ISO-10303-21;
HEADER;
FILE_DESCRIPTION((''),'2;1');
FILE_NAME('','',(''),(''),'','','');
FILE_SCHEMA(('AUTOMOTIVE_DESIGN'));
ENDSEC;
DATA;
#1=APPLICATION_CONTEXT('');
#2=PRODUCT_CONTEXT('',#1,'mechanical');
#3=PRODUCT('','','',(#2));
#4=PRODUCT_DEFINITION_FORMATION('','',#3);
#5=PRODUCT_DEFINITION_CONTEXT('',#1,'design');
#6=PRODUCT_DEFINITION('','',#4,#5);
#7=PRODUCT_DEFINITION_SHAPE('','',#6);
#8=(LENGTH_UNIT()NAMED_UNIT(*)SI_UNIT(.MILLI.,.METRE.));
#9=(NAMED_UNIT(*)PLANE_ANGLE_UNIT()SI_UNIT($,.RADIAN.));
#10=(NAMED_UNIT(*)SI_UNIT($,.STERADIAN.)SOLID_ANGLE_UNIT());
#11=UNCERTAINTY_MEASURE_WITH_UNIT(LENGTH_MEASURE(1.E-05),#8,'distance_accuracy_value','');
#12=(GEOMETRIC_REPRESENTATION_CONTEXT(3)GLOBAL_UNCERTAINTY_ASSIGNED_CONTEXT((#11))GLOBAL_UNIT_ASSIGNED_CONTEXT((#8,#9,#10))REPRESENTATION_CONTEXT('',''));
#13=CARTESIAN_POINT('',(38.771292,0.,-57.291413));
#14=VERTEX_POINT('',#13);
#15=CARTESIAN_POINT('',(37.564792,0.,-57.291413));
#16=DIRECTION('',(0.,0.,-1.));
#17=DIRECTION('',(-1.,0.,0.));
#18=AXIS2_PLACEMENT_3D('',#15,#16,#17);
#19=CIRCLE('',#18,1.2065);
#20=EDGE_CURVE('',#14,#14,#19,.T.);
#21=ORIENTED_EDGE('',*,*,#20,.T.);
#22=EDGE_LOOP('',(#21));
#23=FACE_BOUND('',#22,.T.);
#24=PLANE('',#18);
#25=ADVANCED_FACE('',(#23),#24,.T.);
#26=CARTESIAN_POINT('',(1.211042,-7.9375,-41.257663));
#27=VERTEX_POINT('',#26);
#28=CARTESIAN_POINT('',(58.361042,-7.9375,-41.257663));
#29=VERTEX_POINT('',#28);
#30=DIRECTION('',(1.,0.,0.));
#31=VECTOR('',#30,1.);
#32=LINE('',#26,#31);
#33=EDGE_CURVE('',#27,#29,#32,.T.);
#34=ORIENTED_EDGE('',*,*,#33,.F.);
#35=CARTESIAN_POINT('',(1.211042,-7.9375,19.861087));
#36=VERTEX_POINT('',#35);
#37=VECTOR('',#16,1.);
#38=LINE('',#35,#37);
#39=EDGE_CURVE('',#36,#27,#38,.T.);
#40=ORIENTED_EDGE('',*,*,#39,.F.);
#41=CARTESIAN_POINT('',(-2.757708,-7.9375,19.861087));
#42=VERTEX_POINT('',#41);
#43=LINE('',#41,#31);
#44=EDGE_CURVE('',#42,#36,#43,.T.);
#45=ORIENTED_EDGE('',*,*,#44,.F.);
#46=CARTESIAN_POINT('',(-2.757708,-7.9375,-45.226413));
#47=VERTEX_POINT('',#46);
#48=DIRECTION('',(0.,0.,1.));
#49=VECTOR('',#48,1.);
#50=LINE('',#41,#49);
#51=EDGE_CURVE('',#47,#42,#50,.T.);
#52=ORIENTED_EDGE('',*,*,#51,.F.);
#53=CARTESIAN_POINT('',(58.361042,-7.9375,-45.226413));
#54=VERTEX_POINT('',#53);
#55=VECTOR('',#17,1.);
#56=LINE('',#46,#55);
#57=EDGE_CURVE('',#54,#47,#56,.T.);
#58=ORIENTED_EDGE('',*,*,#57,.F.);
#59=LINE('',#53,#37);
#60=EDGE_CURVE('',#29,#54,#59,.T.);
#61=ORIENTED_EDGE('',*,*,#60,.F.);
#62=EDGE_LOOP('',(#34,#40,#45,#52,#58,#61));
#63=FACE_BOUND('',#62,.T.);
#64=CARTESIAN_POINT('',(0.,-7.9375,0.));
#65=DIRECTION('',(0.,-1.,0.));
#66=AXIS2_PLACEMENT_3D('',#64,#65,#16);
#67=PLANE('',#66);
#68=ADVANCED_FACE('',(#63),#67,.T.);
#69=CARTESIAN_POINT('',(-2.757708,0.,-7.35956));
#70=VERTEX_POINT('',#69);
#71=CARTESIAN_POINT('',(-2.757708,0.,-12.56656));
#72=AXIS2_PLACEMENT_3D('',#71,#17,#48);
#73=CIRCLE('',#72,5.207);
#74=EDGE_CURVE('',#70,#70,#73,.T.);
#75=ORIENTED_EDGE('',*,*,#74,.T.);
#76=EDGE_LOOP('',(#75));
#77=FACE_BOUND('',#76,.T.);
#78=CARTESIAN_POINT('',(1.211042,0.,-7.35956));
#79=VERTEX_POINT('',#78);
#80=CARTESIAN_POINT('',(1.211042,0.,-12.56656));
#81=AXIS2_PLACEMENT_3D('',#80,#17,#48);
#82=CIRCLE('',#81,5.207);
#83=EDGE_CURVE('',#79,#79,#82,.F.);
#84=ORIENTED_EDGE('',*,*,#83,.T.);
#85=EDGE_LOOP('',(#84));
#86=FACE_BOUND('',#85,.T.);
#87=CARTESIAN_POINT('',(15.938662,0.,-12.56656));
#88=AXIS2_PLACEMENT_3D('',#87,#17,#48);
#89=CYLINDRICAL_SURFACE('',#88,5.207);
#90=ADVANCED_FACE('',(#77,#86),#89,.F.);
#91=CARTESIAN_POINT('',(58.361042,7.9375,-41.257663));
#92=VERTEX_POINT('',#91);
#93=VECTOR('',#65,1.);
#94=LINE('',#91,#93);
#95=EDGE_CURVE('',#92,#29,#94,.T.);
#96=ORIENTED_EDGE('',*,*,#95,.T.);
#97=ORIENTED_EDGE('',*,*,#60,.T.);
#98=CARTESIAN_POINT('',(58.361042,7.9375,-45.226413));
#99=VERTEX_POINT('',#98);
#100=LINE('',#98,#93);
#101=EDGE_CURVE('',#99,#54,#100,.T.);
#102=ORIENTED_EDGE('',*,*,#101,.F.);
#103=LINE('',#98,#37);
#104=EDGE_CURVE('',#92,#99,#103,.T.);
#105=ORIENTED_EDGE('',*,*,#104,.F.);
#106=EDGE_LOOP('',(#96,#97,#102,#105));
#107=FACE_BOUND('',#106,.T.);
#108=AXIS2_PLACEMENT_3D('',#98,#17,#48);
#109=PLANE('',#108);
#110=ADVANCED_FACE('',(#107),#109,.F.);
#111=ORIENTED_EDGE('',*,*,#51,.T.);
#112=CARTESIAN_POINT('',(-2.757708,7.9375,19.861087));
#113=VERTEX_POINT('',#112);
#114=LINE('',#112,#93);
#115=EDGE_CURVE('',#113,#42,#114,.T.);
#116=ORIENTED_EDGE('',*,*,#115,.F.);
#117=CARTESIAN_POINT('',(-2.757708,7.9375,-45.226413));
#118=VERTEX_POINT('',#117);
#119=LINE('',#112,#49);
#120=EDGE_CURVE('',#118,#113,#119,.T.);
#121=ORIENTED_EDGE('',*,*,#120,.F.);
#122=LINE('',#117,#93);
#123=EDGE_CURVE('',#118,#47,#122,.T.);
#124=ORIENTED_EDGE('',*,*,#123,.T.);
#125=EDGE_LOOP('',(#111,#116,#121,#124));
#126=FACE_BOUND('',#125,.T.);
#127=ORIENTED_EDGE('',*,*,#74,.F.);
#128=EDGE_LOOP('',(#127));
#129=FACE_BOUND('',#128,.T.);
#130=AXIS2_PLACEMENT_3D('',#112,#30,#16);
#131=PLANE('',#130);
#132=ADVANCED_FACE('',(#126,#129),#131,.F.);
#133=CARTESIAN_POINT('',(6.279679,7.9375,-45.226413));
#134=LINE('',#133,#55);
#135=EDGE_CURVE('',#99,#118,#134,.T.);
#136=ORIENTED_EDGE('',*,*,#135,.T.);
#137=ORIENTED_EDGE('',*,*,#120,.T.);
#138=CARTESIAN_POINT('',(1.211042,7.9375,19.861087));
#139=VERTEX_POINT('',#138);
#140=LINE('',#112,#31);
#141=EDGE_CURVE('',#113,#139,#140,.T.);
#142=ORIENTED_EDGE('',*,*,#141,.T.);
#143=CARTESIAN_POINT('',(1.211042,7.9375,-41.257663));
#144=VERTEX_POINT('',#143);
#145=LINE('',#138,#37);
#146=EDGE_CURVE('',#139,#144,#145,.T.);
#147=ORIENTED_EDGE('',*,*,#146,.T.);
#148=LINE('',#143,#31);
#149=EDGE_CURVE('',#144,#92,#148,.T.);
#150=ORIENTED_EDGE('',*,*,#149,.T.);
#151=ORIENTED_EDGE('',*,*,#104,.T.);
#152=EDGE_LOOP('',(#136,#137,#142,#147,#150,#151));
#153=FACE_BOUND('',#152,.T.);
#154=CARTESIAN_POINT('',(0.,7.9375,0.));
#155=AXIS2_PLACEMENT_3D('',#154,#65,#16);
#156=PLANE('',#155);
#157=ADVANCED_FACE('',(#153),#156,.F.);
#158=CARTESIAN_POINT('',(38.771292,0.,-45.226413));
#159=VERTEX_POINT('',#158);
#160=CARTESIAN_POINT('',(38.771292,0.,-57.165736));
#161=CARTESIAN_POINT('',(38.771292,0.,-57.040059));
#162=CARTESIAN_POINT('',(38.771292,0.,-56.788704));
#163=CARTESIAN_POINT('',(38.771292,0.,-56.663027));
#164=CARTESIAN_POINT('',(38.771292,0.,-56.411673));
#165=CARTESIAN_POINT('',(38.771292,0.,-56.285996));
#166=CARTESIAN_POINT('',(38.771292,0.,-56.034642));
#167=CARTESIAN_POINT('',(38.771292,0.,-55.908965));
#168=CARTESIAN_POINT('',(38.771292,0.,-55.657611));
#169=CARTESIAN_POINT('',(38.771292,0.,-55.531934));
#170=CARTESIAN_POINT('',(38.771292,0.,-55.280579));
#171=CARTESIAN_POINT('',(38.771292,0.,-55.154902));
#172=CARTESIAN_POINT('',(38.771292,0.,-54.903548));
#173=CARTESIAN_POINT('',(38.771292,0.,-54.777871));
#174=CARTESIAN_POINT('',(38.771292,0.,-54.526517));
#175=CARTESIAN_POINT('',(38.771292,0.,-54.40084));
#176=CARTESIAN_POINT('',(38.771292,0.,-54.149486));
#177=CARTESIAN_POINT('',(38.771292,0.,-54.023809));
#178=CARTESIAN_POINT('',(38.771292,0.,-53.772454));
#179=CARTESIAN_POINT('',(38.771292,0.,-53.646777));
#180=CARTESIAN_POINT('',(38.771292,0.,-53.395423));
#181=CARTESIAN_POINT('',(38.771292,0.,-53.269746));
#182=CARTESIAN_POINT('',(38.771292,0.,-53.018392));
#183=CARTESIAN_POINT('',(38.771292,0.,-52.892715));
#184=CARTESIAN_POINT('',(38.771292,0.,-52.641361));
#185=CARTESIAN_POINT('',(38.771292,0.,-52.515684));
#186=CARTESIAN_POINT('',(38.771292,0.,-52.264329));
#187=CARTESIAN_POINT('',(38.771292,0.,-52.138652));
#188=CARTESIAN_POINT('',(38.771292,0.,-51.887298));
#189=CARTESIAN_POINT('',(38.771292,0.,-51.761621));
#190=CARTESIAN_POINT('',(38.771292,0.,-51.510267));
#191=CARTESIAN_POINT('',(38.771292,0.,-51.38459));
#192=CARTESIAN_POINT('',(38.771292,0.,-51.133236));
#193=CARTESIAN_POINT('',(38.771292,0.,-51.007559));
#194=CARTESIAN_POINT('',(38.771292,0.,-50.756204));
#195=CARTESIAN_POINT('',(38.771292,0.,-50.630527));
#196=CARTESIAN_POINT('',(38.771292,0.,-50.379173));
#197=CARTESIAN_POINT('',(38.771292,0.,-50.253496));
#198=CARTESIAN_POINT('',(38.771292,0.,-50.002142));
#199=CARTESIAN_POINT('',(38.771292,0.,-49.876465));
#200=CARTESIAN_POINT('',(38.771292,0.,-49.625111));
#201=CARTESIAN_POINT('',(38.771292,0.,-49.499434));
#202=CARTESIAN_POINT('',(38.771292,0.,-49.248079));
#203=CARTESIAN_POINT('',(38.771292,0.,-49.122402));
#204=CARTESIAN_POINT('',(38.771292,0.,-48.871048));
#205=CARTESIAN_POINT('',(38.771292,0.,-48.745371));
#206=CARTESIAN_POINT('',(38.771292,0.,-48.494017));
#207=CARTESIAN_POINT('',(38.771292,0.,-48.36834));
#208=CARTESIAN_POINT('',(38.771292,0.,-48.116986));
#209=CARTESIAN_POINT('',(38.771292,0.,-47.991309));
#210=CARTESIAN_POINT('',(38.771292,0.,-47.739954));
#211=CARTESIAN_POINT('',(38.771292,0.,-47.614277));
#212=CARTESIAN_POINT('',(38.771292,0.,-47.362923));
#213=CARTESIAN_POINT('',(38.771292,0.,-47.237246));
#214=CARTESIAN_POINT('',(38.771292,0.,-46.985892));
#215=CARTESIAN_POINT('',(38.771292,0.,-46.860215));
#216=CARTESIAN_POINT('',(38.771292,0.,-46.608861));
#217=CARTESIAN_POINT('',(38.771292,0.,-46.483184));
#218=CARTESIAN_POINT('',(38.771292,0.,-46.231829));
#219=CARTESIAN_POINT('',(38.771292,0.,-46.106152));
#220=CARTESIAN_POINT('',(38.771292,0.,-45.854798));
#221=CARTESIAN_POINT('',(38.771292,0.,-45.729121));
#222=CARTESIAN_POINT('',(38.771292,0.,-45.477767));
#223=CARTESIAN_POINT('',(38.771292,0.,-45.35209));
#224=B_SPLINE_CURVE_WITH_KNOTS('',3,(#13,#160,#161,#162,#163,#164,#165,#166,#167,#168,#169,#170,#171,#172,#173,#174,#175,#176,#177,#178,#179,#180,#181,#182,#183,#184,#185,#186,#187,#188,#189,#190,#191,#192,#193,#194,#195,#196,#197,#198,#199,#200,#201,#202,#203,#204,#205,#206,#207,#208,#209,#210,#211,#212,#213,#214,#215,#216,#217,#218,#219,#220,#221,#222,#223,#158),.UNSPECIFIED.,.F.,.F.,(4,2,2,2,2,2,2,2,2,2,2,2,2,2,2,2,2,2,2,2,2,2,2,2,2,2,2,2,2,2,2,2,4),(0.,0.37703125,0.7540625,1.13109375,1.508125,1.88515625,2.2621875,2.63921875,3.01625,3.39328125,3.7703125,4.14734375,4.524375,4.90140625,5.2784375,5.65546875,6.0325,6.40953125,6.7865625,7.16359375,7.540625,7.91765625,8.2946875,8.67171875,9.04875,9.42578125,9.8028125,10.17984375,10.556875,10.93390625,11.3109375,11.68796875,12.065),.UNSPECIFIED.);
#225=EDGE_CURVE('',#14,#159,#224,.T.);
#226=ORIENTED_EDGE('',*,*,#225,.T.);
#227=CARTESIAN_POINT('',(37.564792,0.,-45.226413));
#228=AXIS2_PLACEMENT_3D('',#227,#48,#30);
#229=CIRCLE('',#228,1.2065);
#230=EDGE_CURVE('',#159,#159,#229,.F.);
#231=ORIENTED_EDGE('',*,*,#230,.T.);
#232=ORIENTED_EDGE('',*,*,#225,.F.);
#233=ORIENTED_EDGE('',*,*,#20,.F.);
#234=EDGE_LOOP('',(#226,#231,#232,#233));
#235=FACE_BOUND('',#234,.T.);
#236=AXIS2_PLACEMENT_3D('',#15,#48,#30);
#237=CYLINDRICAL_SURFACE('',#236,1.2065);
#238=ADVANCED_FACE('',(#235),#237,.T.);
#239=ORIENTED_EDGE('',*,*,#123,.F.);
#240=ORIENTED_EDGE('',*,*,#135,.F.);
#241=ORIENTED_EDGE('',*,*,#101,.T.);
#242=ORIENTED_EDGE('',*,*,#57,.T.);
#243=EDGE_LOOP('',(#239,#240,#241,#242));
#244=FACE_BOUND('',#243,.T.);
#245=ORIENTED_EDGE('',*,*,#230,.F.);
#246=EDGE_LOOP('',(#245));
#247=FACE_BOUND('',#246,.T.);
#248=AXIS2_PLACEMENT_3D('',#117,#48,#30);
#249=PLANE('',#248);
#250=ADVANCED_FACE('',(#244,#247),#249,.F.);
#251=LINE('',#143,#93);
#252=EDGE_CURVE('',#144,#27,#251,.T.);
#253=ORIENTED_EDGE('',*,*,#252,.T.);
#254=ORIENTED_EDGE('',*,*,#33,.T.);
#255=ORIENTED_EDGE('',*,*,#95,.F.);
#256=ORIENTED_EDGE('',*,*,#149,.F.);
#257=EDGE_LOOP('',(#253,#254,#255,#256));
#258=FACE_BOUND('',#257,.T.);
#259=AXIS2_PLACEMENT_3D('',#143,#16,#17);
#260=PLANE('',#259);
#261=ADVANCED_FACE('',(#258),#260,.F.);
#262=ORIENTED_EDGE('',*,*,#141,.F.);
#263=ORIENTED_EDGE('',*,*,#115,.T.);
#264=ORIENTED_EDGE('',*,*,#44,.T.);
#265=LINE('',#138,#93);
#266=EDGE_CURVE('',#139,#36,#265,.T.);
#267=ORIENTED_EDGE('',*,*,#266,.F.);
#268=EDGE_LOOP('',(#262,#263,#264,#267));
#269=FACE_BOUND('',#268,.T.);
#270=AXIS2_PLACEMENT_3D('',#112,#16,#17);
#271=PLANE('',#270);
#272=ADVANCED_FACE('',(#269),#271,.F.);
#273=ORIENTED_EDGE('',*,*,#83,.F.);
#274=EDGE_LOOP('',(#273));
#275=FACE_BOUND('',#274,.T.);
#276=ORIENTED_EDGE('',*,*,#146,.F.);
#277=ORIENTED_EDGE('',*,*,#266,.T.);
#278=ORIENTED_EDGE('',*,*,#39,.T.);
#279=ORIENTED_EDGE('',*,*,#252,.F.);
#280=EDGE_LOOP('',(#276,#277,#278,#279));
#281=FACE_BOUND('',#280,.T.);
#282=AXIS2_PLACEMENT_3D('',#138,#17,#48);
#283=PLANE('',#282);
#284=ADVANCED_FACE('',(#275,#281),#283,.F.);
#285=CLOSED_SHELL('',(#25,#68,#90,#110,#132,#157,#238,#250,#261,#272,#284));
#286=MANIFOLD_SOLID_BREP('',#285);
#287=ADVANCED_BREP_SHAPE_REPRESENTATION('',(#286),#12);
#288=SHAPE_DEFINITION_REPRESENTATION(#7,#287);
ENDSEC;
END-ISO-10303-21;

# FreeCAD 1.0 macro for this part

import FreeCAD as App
import Part
import Sketcher

V = App.Vector
Q = App.Units.Quantity

doc = App.newDocument("Part")
params = doc.addObject("Spreadsheet::Sheet", "Params")
for row, (alias, value) in enumerate([
    ("sketch1_width", "2.25 in"),
    ("sketch1_width2", "0.15625 in"),
    ("pad1_length", "0.625 in"),
    ("sketch2_diameter", "0.41 in"),
    ("pocket1_length", "0.15625 in"),
    ("sketch3_diameter", "0.095 in"),
    ("pad2_length", "0.475 in"),
], start=1):
    params.set(f"A{row}", alias)
    params.set(f"B{row}", "=" + value)
    params.setAlias(f"B{row}", alias)

body = doc.addObject("PartDesign::Body", "Body")

# Sketch on XZ plane
sketch1 = doc.addObject("Sketcher::SketchObject", "Sketch")
body.addObject(sketch1)
sketch1.AttachmentSupport = (doc.XZ_Plane, [""])
sketch1.MapMode = "FlatFace"
sketch1.addGeometry(Part.LineSegment(V(-2.8, 19.9, 0), V(1.2, 19.9, 0)), False)
sketch1.addGeometry(Part.LineSegment(V(1.2, 19.9, 0), V(1.2, -41.3, 0)), False)
sketch1.addGeometry(Part.LineSegment(V(1.2, -41.3, 0), V(58.4, -41.3, 0)), False)
sketch1.addGeometry(Part.LineSegment(V(58.4, -41.3, 0), V(58.4, -45.2, 0)), False)
sketch1.addGeometry(Part.LineSegment(V(58.4, -45.2, 0), V(-2.8, -45.2, 0)), False)
sketch1.addGeometry(Part.LineSegment(V(-2.8, -45.2, 0), V(-2.8, 19.9, 0)), False)
sketch1.addConstraint(Sketcher.Constraint("Coincident", 0, 2, 1, 1))
sketch1.addConstraint(Sketcher.Constraint("Coincident", 1, 2, 2, 1))
sketch1.addConstraint(Sketcher.Constraint("Coincident", 2, 2, 3, 1))
sketch1.addConstraint(Sketcher.Constraint("Coincident", 3, 2, 4, 1))
sketch1.addConstraint(Sketcher.Constraint("Coincident", 4, 2, 5, 1))
sketch1.addConstraint(Sketcher.Constraint("Coincident", 5, 2, 0, 1))
sketch1.addConstraint(Sketcher.Constraint("Horizontal", 0))
sketch1.addConstraint(Sketcher.Constraint("Vertical", 1))
sketch1.addConstraint(Sketcher.Constraint("Horizontal", 2))
sketch1.addConstraint(Sketcher.Constraint("Vertical", 3))
sketch1.addConstraint(Sketcher.Constraint("Horizontal", 4))
sketch1.addConstraint(Sketcher.Constraint("Vertical", 5))
sketch1.addConstraint(Sketcher.Constraint("Equal", 4, 1))
sketch1.addConstraint(Sketcher.Constraint("Equal", 0, 3))
sketch1.addConstraint(Sketcher.Constraint("DistanceX", 2, 1, 2, 2, Q("2.25 in")))
sketch1.addConstraint(Sketcher.Constraint("DistanceX", 0, 1, 0, 2, Q("0.15625 in")))
sketch1.addConstraint(Sketcher.Constraint("DistanceX", -1, 1, 0, 2, 1.211042))
sketch1.addConstraint(Sketcher.Constraint("DistanceY", -1, 1, 0, 2, 19.861087))
sketch1.setExpression("Constraints[14]", "Params.sketch1_width")
sketch1.setExpression("Constraints[15]", "Params.sketch1_width2")
pad1 = doc.addObject("PartDesign::Pad", "Pad")
body.addObject(pad1)
pad1.Profile = sketch1
pad1.setExpression("Length", "Params.pad1_length")
pad1.Midplane = True

# Sketch on YZ plane
sketch2 = doc.addObject("Sketcher::SketchObject", "Sketch001")
body.addObject(sketch2)
sketch2.AttachmentSupport = (doc.YZ_Plane, [""])
sketch2.MapMode = "FlatFace"
sketch2.AttachmentOffset = App.Placement(V(0, 0, -2.757708), App.Rotation())
sketch2.addGeometry(Part.Circle(V(0, -13, 0), V(0, 0, 1), 5), False)
sketch2.addConstraint(Sketcher.Constraint("PointOnObject", 0, 3, -2))
sketch2.addConstraint(Sketcher.Constraint("Diameter", 0, Q("0.41 in")))
sketch2.addConstraint(Sketcher.Constraint("DistanceY", 0, 3, -1, 1, 12.56656))
sketch2.setExpression("Constraints[1]", "Params.sketch2_diameter")
pocket1 = doc.addObject("PartDesign::Pocket", "Pocket")
body.addObject(pocket1)
pocket1.Profile = sketch2
pocket1.setExpression("Length", "Params.pocket1_length")
pocket1.Reversed = True

# Sketch on XY plane
sketch3 = doc.addObject("Sketcher::SketchObject", "Sketch002")
body.addObject(sketch3)
sketch3.AttachmentSupport = (doc.XY_Plane, [""])
sketch3.MapMode = "FlatFace"
sketch3.AttachmentOffset = App.Placement(V(0, 0, -45.226413), App.Rotation())
sketch3.addGeometry(Part.Circle(V(37.6, 0, 0), V(0, 0, 1), 1.2), False)
sketch3.addConstraint(Sketcher.Constraint("PointOnObject", 0, 3, -1))
sketch3.addConstraint(Sketcher.Constraint("Diameter", 0, Q("0.095 in")))
sketch3.addConstraint(Sketcher.Constraint("DistanceX", -1, 1, 0, 3, 37.564792))
sketch3.setExpression("Constraints[1]", "Params.sketch3_diameter")
pad2 = doc.addObject("PartDesign::Pad", "Pad001")
body.addObject(pad2)
pad2.Profile = sketch3
pad2.setExpression("Length", "Params.pad2_length")
pad2.Reversed = True

doc.recompute()
